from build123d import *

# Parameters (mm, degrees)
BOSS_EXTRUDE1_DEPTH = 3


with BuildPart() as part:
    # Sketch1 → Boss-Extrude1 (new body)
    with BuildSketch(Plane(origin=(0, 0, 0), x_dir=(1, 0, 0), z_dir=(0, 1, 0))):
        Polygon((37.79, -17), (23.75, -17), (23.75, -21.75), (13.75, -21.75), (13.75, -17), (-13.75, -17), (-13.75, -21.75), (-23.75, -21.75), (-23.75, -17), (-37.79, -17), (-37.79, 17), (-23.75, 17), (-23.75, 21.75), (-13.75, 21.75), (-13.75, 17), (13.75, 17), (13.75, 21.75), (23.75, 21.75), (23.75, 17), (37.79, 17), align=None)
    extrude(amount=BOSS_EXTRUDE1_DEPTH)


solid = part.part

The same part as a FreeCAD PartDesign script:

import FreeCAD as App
import Part
import Sketcher
Q = App.Units.Quantity

doc = App.newDocument("Part")
body = doc.addObject("PartDesign::Body", "Body")

sketch1 = doc.addObject("Sketcher::SketchObject", "Sketch")
body.addObject(sketch1)
sketch1.AttachmentSupport = (doc.XZ_Plane, [""])
sketch1.MapMode = "FlatFace"
sketch1.addGeometry([
    Part.LineSegment(App.Vector(23.75, 17, 0), App.Vector(37.79, 17, 0)),
    Part.LineSegment(App.Vector(37.79, 17, 0), App.Vector(37.79, -17, 0)),
    Part.LineSegment(App.Vector(37.79, -17, 0), App.Vector(23.75, -17, 0)),
    Part.LineSegment(App.Vector(23.75, -17, 0), App.Vector(23.75, -21.75, 0)),
    Part.LineSegment(App.Vector(23.75, -21.75, 0), App.Vector(13.75, -21.75, 0)),
    Part.LineSegment(App.Vector(13.75, -21.75, 0), App.Vector(13.75, -17, 0)),
    Part.LineSegment(App.Vector(13.75, -17, 0), App.Vector(-13.75, -17, 0)),
    Part.LineSegment(App.Vector(-13.75, -17, 0), App.Vector(-13.75, -21.75, 0)),
    Part.LineSegment(App.Vector(-13.75, -21.75, 0), App.Vector(-23.75, -21.75, 0)),
    Part.LineSegment(App.Vector(-23.75, -21.75, 0), App.Vector(-23.75, -17, 0)),
    Part.LineSegment(App.Vector(-23.75, -17, 0), App.Vector(-37.79, -17, 0)),
    Part.LineSegment(App.Vector(-37.79, -17, 0), App.Vector(-37.79, 17, 0)),
    Part.LineSegment(App.Vector(-37.79, 17, 0), App.Vector(-23.75, 17, 0)),
    Part.LineSegment(App.Vector(-23.75, 17, 0), App.Vector(-23.75, 21.75, 0)),
    Part.LineSegment(App.Vector(-23.75, 21.75, 0), App.Vector(-13.75, 21.75, 0)),
    Part.LineSegment(App.Vector(-13.75, 21.75, 0), App.Vector(-13.75, 17, 0)),
    Part.LineSegment(App.Vector(-13.75, 17, 0), App.Vector(13.75, 17, 0)),
    Part.LineSegment(App.Vector(13.75, 17, 0), App.Vector(13.75, 21.75, 0)),
    Part.LineSegment(App.Vector(13.75, 21.75, 0), App.Vector(23.75, 21.75, 0)),
    Part.LineSegment(App.Vector(23.75, 21.75, 0), App.Vector(23.75, 17, 0)),
], False)
sketch1.addConstraint([
    Sketcher.Constraint("Coincident", 0, 2, 1, 1),
    Sketcher.Constraint("Coincident", 1, 2, 2, 1),
    Sketcher.Constraint("Coincident", 2, 2, 3, 1),
    Sketcher.Constraint("Coincident", 3, 2, 4, 1),
    Sketcher.Constraint("Coincident", 4, 2, 5, 1),
    Sketcher.Constraint("Coincident", 5, 2, 6, 1),
    Sketcher.Constraint("Coincident", 6, 2, 7, 1),
    Sketcher.Constraint("Coincident", 7, 2, 8, 1),
    Sketcher.Constraint("Coincident", 8, 2, 9, 1),
    Sketcher.Constraint("Coincident", 9, 2, 10, 1),
    Sketcher.Constraint("Coincident", 10, 2, 11, 1),
    Sketcher.Constraint("Coincident", 11, 2, 12, 1),
    Sketcher.Constraint("Coincident", 12, 2, 13, 1),
    Sketcher.Constraint("Coincident", 13, 2, 14, 1),
    Sketcher.Constraint("Coincident", 14, 2, 15, 1),
    Sketcher.Constraint("Coincident", 15, 2, 16, 1),
    Sketcher.Constraint("Coincident", 16, 2, 17, 1),
    Sketcher.Constraint("Coincident", 17, 2, 18, 1),
    Sketcher.Constraint("Coincident", 18, 2, 19, 1),
    Sketcher.Constraint("Coincident", 19, 2, 0, 1),
    Sketcher.Constraint("Horizontal", 0),
    Sketcher.Constraint("Vertical", 1),
    Sketcher.Constraint("Horizontal", 2),
    Sketcher.Constraint("Vertical", 3),
    Sketcher.Constraint("Horizontal", 4),
    Sketcher.Constraint("Vertical", 5),
    Sketcher.Constraint("Horizontal", 6),
    Sketcher.Constraint("Vertical", 7),
    Sketcher.Constraint("Horizontal", 8),
    Sketcher.Constraint("Vertical", 9),
    Sketcher.Constraint("Horizontal", 10),
    Sketcher.Constraint("Vertical", 11),
    Sketcher.Constraint("Horizontal", 12),
    Sketcher.Constraint("Vertical", 13),
    Sketcher.Constraint("Horizontal", 14),
    Sketcher.Constraint("Vertical", 15),
    Sketcher.Constraint("Horizontal", 16),
    Sketcher.Constraint("Vertical", 17),
    Sketcher.Constraint("Horizontal", 18),
    Sketcher.Constraint("Vertical", 19),
    Sketcher.Constraint("Symmetric", 0, 2, 10, 2, -1, 1),
    Sketcher.Constraint("Symmetric", 2, 2, 12, 2, -1, 1),
    Sketcher.Constraint("Symmetric", 4, 2, 14, 2, -1, 1),
    Sketcher.Constraint("Symmetric", 6, 2, 16, 2, -1, 1),
    Sketcher.Constraint("Symmetric", 8, 2, 18, 2, -1, 1),
    Sketcher.Constraint("Symmetric", 4, 2, 7, 2, -2),
    Sketcher.Constraint("Symmetric", 2, 2, 9, 2, -2),
    Sketcher.Constraint("Horizontal", 2, 2, 5, 2),
    Sketcher.Constraint("DistanceX", 4, 2, 4, 1, Q("10 mm")),
    Sketcher.Constraint("DistanceY", 1, 2, 1, 1, Q("34 mm")),
    Sketcher.Constraint("DistanceX", 6, 2, 6, 1, Q("27.5 mm")),
    Sketcher.Constraint("DistanceX", 0, 1, 0, 2, Q("14.04 mm")),
    Sketcher.Constraint("DistanceY", 3, 2, 3, 1, Q("4.75 mm")),
])
pad1 = doc.addObject("PartDesign::Pad", "Pad")
body.addObject(pad1)
pad1.Profile = sketch1
pad1.Length = 3
pad1.Reversed = True

doc.recompute()
